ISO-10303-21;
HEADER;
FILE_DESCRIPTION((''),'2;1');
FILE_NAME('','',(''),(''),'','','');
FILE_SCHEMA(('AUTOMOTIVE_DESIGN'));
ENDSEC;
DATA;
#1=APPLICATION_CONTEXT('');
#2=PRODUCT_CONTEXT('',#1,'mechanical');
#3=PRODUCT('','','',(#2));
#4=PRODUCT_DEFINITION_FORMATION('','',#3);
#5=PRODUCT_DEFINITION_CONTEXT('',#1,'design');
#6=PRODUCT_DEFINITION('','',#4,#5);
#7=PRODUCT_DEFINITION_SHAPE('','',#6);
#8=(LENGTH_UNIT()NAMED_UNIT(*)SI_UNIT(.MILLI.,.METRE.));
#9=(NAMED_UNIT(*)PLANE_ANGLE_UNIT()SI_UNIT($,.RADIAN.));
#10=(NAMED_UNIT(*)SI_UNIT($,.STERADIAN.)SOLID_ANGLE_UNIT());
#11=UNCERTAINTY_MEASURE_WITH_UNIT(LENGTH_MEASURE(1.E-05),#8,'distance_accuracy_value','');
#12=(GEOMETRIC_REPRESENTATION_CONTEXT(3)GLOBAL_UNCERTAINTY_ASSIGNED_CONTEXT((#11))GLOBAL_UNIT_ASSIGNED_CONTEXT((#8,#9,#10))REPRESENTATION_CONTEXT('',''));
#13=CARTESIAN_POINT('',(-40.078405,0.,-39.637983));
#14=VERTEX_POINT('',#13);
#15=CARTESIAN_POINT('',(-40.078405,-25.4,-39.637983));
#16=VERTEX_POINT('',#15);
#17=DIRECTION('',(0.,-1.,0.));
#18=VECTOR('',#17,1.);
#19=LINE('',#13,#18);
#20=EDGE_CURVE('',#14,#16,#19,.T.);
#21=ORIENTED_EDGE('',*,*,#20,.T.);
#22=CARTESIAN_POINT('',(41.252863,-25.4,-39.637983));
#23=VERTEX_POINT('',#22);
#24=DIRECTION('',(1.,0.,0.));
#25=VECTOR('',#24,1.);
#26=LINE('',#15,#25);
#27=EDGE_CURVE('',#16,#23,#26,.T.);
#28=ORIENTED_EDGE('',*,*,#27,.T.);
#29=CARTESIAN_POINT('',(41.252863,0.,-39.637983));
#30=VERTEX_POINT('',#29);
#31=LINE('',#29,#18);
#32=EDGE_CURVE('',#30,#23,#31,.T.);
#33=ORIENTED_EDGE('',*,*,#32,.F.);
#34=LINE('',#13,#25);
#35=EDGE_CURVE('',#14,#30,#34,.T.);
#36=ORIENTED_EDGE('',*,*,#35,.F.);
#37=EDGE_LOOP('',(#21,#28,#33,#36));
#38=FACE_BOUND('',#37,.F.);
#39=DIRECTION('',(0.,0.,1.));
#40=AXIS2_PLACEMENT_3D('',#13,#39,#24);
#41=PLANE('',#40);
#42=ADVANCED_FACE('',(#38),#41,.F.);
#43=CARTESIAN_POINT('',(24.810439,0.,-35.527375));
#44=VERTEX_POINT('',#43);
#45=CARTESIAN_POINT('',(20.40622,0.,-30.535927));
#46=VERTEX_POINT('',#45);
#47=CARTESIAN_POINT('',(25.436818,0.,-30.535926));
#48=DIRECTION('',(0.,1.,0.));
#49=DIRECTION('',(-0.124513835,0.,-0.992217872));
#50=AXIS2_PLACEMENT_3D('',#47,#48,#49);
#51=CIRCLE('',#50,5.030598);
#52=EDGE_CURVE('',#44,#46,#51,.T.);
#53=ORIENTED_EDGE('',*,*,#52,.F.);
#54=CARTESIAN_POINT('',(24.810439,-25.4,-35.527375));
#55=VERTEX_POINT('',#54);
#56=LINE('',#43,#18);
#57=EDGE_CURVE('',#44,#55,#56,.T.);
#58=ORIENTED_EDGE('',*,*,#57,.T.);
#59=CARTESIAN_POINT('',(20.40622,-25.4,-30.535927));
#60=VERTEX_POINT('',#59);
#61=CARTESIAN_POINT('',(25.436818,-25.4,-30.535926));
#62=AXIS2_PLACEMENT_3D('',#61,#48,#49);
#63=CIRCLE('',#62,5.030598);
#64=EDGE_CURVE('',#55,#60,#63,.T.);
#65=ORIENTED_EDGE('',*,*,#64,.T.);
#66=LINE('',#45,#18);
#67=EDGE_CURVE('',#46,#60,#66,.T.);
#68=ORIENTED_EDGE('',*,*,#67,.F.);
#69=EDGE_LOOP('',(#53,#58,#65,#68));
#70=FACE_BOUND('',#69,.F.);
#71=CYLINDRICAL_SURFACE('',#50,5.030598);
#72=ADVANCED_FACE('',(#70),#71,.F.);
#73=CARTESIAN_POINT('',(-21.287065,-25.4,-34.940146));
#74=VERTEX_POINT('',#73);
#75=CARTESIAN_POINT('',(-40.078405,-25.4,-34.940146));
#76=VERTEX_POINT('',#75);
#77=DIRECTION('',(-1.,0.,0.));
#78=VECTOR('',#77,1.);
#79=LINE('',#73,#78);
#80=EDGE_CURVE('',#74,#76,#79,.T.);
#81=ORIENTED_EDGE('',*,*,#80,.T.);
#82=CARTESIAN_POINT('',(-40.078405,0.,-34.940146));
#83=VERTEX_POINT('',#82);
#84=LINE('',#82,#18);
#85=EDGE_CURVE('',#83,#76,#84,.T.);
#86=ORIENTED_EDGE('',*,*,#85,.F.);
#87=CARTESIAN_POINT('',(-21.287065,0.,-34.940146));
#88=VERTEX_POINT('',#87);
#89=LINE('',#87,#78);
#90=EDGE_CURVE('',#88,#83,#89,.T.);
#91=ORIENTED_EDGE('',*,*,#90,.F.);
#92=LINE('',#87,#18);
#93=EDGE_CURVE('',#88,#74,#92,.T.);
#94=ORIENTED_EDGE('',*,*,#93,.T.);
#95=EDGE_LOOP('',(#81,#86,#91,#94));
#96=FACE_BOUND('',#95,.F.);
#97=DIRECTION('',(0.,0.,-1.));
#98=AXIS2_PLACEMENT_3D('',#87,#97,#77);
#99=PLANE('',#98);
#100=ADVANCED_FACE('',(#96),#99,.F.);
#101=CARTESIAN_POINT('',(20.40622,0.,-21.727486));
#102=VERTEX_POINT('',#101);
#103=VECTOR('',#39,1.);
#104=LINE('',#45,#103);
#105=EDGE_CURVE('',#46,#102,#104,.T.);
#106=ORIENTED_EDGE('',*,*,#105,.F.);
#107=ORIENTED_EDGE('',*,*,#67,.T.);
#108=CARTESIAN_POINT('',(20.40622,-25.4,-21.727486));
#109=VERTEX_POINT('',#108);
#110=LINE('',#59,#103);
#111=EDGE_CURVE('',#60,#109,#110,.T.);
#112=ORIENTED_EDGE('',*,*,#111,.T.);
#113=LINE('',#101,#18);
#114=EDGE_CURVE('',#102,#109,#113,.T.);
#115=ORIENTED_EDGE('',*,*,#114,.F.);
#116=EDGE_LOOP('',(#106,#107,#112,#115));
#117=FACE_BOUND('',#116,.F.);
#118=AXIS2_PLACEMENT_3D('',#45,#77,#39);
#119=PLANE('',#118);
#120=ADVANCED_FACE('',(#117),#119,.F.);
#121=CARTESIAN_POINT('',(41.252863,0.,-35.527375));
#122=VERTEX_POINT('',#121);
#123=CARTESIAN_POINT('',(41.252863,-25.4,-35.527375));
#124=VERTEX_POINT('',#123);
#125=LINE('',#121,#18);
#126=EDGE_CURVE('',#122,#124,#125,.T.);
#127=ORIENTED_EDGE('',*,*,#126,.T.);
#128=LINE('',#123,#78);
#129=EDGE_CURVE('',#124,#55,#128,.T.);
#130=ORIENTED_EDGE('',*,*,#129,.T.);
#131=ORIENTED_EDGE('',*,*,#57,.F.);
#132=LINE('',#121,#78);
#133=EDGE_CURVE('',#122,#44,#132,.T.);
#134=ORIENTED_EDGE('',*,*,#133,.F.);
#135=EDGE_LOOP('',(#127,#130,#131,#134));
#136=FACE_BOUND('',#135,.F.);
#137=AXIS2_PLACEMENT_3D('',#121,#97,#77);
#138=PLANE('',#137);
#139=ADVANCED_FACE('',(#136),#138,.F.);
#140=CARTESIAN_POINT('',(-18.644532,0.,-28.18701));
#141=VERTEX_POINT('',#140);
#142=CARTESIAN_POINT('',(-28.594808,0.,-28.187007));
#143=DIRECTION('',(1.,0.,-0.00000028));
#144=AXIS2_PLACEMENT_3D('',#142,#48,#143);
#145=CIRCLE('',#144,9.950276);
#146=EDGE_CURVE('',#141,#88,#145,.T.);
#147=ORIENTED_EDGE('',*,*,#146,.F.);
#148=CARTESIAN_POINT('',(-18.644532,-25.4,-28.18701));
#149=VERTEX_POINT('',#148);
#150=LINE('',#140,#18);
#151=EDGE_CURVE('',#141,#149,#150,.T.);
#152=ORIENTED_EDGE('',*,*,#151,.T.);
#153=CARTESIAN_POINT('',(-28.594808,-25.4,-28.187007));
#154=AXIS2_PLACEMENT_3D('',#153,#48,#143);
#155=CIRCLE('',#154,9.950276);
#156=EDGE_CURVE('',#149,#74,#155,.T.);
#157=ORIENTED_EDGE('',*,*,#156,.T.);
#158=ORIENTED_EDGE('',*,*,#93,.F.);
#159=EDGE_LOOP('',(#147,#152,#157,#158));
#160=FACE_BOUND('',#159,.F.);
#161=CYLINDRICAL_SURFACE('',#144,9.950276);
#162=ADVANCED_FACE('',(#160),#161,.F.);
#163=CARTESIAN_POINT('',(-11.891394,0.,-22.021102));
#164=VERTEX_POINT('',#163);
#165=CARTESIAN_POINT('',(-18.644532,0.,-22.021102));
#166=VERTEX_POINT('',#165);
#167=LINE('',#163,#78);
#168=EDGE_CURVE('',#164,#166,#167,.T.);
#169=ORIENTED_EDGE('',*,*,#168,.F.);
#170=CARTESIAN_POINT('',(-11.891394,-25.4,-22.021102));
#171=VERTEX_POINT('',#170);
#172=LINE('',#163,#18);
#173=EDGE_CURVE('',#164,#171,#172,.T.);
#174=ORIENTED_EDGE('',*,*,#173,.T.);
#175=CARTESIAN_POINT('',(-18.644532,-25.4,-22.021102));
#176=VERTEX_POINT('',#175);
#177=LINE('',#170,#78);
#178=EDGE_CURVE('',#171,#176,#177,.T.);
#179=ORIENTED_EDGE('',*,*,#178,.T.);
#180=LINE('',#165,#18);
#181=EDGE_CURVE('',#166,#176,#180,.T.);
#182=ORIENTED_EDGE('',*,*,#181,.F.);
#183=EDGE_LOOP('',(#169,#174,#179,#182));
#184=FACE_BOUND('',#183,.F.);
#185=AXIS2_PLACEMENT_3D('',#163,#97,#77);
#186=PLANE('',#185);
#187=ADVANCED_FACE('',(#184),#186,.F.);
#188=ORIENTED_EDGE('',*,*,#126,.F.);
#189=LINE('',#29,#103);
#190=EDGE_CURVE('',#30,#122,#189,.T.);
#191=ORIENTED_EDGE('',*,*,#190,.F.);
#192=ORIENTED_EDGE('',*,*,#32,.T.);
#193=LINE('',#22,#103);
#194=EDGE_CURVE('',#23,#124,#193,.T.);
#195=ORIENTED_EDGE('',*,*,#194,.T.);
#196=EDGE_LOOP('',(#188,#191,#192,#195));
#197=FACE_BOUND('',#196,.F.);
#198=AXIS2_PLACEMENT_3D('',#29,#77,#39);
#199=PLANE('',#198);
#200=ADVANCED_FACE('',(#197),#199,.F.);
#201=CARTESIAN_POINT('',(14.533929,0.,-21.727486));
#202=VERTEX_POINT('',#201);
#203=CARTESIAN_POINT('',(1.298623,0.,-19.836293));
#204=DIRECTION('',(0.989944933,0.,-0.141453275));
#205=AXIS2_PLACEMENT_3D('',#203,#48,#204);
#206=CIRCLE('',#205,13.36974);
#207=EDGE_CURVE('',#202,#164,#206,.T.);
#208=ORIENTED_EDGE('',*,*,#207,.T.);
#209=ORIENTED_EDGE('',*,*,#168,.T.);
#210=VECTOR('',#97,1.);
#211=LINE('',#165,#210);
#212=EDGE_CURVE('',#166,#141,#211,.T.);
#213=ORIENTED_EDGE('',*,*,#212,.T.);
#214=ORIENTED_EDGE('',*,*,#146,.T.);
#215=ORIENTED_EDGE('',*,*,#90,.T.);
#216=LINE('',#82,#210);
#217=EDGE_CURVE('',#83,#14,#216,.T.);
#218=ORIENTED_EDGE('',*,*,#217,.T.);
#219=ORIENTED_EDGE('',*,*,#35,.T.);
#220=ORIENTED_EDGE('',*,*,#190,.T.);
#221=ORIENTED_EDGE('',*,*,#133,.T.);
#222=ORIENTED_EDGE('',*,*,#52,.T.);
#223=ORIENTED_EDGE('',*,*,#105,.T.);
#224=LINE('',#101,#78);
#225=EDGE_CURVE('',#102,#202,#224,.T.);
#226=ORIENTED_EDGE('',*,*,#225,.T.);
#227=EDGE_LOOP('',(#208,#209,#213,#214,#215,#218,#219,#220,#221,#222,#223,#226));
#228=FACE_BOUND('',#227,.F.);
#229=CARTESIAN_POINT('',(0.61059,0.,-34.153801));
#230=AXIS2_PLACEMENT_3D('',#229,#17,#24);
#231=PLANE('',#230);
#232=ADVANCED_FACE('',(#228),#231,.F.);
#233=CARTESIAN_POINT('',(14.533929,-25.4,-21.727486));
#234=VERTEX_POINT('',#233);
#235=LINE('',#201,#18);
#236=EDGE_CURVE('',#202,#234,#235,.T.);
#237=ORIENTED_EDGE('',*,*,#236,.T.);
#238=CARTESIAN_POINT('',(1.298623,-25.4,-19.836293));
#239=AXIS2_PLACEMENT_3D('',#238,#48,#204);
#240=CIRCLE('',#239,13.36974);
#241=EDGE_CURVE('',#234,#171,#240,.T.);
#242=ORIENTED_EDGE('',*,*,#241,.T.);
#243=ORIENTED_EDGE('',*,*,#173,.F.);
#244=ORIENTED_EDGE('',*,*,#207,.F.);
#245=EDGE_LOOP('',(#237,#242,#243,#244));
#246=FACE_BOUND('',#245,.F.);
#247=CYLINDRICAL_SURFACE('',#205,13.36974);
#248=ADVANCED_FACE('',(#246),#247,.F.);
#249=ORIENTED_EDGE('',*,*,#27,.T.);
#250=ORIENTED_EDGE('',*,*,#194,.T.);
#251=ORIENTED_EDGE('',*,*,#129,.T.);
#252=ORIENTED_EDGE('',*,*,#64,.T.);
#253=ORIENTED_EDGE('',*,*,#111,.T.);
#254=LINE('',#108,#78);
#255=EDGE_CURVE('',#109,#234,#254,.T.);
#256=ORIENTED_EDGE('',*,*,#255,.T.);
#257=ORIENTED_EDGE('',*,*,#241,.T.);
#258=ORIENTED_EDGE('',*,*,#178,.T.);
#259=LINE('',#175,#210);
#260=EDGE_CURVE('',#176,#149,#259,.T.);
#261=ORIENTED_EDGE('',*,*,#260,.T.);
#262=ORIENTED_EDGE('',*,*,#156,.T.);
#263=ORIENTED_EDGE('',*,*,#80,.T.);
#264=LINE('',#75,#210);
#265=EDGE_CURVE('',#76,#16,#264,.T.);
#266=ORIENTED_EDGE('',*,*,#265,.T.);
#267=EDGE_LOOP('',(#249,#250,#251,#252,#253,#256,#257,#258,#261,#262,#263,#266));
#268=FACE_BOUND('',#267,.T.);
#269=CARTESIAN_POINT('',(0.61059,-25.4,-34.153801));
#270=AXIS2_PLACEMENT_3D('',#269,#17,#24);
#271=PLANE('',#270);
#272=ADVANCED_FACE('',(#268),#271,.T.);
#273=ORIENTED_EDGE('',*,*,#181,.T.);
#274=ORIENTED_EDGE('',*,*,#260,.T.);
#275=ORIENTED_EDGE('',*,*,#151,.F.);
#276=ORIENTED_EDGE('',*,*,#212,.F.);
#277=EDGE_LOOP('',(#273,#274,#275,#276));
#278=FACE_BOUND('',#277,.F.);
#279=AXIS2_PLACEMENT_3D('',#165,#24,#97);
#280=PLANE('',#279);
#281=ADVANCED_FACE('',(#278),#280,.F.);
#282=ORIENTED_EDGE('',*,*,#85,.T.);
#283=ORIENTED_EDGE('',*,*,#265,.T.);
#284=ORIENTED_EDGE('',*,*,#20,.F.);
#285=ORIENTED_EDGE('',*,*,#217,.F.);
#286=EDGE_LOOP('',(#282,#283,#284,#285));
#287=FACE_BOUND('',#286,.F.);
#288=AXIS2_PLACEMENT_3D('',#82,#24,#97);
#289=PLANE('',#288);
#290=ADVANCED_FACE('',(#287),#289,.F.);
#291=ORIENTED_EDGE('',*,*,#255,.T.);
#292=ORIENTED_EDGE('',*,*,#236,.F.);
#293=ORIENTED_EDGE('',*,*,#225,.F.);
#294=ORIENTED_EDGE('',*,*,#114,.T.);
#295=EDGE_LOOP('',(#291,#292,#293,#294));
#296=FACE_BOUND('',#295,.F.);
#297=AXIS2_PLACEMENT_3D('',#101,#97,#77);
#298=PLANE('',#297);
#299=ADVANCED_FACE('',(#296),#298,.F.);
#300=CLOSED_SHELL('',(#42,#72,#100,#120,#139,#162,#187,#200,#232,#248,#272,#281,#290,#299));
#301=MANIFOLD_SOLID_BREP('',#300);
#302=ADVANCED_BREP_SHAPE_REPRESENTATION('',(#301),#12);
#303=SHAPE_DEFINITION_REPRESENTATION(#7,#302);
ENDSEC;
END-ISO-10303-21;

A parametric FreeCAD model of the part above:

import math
import FreeCAD as App
import Part
import Sketcher
Q = App.Units.Quantity

doc = App.newDocument("Part")
body = doc.addObject("PartDesign::Body", "Body")

sketch1 = body.newObject("Sketcher::SketchObject", "Sketch")
sketch1.AttachmentSupport = (doc.getObject("XZ_Plane"), [""])
sketch1.MapMode = "FlatFace"
sketch1.addGeometry([
    Part.LineSegment(App.Vector(-40.078405, -34.940146, 0), App.Vector(-40.078405, -39.637983, 0)),
    Part.LineSegment(App.Vector(-40.078405, -39.637983, 0), App.Vector(41.252863, -39.637983, 0)),
    Part.LineSegment(App.Vector(41.252863, -39.637983, 0), App.Vector(41.252863, -35.527375, 0)),
    Part.LineSegment(App.Vector(41.252863, -35.527375, 0), App.Vector(24.810439, -35.527375, 0)),
    Part.ArcOfCircle(Part.Circle(App.Vector(25.436818, -30.535926, 0), App.Vector(0, 0, 1), 5.030598), math.radians(-179.999985), math.radians(-97.152681)),
    Part.LineSegment(App.Vector(20.40622, -30.535927, 0), App.Vector(20.40622, -21.727486, 0)),
    Part.LineSegment(App.Vector(20.40622, -21.727486, 0), App.Vector(14.533929, -21.727486, 0)),
    Part.ArcOfCircle(Part.Circle(App.Vector(1.298623, -19.836293, 0), App.Vector(0, 0, 1), 13.36974), math.radians(-170.594857), math.radians(-8.13195)),
    Part.LineSegment(App.Vector(-11.891394, -22.021102, 0), App.Vector(-18.644532, -22.021102, 0)),
    Part.LineSegment(App.Vector(-18.644532, -22.021102, 0), App.Vector(-18.644532, -28.18701, 0)),
    Part.ArcOfCircle(Part.Circle(App.Vector(-28.594808, -28.187007, 0), App.Vector(0, 0, 1), 9.950276), math.radians(-42.741251), math.radians(-0.000016)),
    Part.LineSegment(App.Vector(-21.287065, -34.940146, 0), App.Vector(-40.078405, -34.940146, 0)),
], False)
sketch1.addConstraint([
    Sketcher.Constraint("Coincident", 0, 2, 1, 1),
    Sketcher.Constraint("Coincident", 1, 2, 2, 1),
    Sketcher.Constraint("Coincident", 2, 2, 3, 1),
    Sketcher.Constraint("Coincident", 3, 2, 4, 2),
    Sketcher.Constraint("Tangent", 4, 1, 5, 1),
    Sketcher.Constraint("Coincident", 5, 2, 6, 1),
    Sketcher.Constraint("Coincident", 6, 2, 7, 2),
    Sketcher.Constraint("Coincident", 7, 1, 8, 1),
    Sketcher.Constraint("Coincident", 8, 2, 9, 1),
    Sketcher.Constraint("Tangent", 9, 2, 10, 2),
    Sketcher.Constraint("Coincident", 10, 1, 11, 1),
    Sketcher.Constraint("Coincident", 11, 2, 0, 1),
    Sketcher.Constraint("Vertical", 0),
    Sketcher.Constraint("Horizontal", 1),
    Sketcher.Constraint("Vertical", 2),
    Sketcher.Constraint("Horizontal", 3),
    Sketcher.Constraint("Vertical", 5),
    Sketcher.Constraint("Horizontal", 6),
    Sketcher.Constraint("Horizontal", 8),
    Sketcher.Constraint("Vertical", 9),
    Sketcher.Constraint("Horizontal", 11),
    Sketcher.Constraint("Radius", 4, 5.030598),
    Sketcher.Constraint("Radius", 7, 13.36974),
    Sketcher.Constraint("Radius", 10, 9.950276),
    Sketcher.Constraint("DistanceX", 6, 2, 6, 1, 5.872291),
    Sketcher.Constraint("DistanceX", 8, 2, 8, 1, 6.753138),
    Sketcher.Constraint("DistanceX", 11, 2, 11, 1, 18.79134),
    Sketcher.Constraint("DistanceY", 5, 1, 5, 2, 8.808441),
    Sketcher.Constraint("DistanceY", 9, 2, 9, 1, 6.165908),
    Sketcher.Constraint("DistanceY", 8, 2, -1, 1, 22.021102),
    Sketcher.Constraint("DistanceX", 1, 1, 1, 2, 81.331268),
    Sketcher.Constraint("DistanceX", 3, 2, 3, 1, 16.442424),
    Sketcher.Constraint("DistanceY", 0, 2, 0, 1, 4.697837),
    Sketcher.Constraint("DistanceY", 2, 1, 2, 2, 4.110608),
    Sketcher.Constraint("DistanceX", -1, 1, 4, 3, 25.436818),
    Sketcher.Constraint("DistanceX", -1, 1, 3, 2, 24.810439),
    Sketcher.Constraint("DistanceX", 10, 3, 7, 3, 29.893431),
])
pad1 = body.newObject("PartDesign::Pad", "Pad")
pad1.Profile = sketch1
pad1.Length = Q("1 in")

doc.recompute()
